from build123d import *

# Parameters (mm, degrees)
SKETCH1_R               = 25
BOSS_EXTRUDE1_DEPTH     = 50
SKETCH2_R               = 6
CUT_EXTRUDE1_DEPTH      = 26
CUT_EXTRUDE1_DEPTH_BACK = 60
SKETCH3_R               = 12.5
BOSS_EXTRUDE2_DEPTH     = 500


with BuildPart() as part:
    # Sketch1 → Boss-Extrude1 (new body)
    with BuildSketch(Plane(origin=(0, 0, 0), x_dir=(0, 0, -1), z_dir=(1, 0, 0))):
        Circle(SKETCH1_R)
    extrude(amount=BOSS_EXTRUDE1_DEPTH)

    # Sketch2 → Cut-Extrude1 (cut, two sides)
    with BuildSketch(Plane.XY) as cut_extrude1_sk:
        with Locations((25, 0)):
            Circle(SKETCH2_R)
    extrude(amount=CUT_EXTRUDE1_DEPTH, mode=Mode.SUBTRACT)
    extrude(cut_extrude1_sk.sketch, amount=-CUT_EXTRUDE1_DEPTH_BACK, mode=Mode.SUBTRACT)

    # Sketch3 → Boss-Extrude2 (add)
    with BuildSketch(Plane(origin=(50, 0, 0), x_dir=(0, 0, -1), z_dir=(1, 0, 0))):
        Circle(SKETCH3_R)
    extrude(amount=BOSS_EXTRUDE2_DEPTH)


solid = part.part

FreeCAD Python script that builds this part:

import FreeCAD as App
import Part
import Sketcher

V = App.Vector

doc = App.newDocument("Part")
body = doc.addObject("PartDesign::Body", "Body")

# Sketch on YZ plane
sketch1 = body.newObject("Sketcher::SketchObject", "Sketch")
sketch1.AttachmentSupport = (doc.getObject("YZ_Plane"), [""])
sketch1.MapMode = "FlatFace"
sketch1.addGeometry(Part.Circle(V(0, 0, 0), V(0, 0, 1), 25), False)
sketch1.addConstraint([
    Sketcher.Constraint("Coincident", 0, 3, -1, 1),
    Sketcher.Constraint("Diameter", 0, 50.0),
])
pad1 = body.newObject("PartDesign::Pad", "Pad")
pad1.Profile = sketch1
pad1.Length = 50

# Sketch on XY plane
sketch2 = body.newObject("Sketcher::SketchObject", "Sketch001")
sketch2.AttachmentSupport = (doc.getObject("XY_Plane"), [""])
sketch2.MapMode = "FlatFace"
sketch2.addGeometry(Part.Circle(V(25, 0, 0), V(0, 0, 1), 6), False)
sketch2.addConstraint([
    Sketcher.Constraint("PointOnObject", 0, 3, -1),
    Sketcher.Constraint("Diameter", 0, 12.0),
    Sketcher.Constraint("DistanceX", -1, 1, 0, 3, 25.0),
])
pocket1 = body.newObject("PartDesign::Pocket", "Pocket")
pocket1.Profile = sketch2
pocket1.Type = "ThroughAll"
pocket1.Midplane = True

# Sketch on YZ plane
sketch3 = body.newObject("Sketcher::SketchObject", "Sketch002")
sketch3.AttachmentSupport = (doc.getObject("YZ_Plane"), [""])
sketch3.MapMode = "FlatFace"
sketch3.AttachmentOffset = App.Placement(V(0, 0, 50), App.Rotation())
sketch3.addGeometry(Part.Circle(V(0, 0, 0), V(0, 0, 1), 12), False)
sketch3.addConstraint([
    Sketcher.Constraint("Coincident", 0, 3, -1, 1),
    Sketcher.Constraint("Diameter", 0, 25.0),
])
pad2 = body.newObject("PartDesign::Pad", "Pad001")
pad2.Profile = sketch3
pad2.Length = 500

doc.recompute()
